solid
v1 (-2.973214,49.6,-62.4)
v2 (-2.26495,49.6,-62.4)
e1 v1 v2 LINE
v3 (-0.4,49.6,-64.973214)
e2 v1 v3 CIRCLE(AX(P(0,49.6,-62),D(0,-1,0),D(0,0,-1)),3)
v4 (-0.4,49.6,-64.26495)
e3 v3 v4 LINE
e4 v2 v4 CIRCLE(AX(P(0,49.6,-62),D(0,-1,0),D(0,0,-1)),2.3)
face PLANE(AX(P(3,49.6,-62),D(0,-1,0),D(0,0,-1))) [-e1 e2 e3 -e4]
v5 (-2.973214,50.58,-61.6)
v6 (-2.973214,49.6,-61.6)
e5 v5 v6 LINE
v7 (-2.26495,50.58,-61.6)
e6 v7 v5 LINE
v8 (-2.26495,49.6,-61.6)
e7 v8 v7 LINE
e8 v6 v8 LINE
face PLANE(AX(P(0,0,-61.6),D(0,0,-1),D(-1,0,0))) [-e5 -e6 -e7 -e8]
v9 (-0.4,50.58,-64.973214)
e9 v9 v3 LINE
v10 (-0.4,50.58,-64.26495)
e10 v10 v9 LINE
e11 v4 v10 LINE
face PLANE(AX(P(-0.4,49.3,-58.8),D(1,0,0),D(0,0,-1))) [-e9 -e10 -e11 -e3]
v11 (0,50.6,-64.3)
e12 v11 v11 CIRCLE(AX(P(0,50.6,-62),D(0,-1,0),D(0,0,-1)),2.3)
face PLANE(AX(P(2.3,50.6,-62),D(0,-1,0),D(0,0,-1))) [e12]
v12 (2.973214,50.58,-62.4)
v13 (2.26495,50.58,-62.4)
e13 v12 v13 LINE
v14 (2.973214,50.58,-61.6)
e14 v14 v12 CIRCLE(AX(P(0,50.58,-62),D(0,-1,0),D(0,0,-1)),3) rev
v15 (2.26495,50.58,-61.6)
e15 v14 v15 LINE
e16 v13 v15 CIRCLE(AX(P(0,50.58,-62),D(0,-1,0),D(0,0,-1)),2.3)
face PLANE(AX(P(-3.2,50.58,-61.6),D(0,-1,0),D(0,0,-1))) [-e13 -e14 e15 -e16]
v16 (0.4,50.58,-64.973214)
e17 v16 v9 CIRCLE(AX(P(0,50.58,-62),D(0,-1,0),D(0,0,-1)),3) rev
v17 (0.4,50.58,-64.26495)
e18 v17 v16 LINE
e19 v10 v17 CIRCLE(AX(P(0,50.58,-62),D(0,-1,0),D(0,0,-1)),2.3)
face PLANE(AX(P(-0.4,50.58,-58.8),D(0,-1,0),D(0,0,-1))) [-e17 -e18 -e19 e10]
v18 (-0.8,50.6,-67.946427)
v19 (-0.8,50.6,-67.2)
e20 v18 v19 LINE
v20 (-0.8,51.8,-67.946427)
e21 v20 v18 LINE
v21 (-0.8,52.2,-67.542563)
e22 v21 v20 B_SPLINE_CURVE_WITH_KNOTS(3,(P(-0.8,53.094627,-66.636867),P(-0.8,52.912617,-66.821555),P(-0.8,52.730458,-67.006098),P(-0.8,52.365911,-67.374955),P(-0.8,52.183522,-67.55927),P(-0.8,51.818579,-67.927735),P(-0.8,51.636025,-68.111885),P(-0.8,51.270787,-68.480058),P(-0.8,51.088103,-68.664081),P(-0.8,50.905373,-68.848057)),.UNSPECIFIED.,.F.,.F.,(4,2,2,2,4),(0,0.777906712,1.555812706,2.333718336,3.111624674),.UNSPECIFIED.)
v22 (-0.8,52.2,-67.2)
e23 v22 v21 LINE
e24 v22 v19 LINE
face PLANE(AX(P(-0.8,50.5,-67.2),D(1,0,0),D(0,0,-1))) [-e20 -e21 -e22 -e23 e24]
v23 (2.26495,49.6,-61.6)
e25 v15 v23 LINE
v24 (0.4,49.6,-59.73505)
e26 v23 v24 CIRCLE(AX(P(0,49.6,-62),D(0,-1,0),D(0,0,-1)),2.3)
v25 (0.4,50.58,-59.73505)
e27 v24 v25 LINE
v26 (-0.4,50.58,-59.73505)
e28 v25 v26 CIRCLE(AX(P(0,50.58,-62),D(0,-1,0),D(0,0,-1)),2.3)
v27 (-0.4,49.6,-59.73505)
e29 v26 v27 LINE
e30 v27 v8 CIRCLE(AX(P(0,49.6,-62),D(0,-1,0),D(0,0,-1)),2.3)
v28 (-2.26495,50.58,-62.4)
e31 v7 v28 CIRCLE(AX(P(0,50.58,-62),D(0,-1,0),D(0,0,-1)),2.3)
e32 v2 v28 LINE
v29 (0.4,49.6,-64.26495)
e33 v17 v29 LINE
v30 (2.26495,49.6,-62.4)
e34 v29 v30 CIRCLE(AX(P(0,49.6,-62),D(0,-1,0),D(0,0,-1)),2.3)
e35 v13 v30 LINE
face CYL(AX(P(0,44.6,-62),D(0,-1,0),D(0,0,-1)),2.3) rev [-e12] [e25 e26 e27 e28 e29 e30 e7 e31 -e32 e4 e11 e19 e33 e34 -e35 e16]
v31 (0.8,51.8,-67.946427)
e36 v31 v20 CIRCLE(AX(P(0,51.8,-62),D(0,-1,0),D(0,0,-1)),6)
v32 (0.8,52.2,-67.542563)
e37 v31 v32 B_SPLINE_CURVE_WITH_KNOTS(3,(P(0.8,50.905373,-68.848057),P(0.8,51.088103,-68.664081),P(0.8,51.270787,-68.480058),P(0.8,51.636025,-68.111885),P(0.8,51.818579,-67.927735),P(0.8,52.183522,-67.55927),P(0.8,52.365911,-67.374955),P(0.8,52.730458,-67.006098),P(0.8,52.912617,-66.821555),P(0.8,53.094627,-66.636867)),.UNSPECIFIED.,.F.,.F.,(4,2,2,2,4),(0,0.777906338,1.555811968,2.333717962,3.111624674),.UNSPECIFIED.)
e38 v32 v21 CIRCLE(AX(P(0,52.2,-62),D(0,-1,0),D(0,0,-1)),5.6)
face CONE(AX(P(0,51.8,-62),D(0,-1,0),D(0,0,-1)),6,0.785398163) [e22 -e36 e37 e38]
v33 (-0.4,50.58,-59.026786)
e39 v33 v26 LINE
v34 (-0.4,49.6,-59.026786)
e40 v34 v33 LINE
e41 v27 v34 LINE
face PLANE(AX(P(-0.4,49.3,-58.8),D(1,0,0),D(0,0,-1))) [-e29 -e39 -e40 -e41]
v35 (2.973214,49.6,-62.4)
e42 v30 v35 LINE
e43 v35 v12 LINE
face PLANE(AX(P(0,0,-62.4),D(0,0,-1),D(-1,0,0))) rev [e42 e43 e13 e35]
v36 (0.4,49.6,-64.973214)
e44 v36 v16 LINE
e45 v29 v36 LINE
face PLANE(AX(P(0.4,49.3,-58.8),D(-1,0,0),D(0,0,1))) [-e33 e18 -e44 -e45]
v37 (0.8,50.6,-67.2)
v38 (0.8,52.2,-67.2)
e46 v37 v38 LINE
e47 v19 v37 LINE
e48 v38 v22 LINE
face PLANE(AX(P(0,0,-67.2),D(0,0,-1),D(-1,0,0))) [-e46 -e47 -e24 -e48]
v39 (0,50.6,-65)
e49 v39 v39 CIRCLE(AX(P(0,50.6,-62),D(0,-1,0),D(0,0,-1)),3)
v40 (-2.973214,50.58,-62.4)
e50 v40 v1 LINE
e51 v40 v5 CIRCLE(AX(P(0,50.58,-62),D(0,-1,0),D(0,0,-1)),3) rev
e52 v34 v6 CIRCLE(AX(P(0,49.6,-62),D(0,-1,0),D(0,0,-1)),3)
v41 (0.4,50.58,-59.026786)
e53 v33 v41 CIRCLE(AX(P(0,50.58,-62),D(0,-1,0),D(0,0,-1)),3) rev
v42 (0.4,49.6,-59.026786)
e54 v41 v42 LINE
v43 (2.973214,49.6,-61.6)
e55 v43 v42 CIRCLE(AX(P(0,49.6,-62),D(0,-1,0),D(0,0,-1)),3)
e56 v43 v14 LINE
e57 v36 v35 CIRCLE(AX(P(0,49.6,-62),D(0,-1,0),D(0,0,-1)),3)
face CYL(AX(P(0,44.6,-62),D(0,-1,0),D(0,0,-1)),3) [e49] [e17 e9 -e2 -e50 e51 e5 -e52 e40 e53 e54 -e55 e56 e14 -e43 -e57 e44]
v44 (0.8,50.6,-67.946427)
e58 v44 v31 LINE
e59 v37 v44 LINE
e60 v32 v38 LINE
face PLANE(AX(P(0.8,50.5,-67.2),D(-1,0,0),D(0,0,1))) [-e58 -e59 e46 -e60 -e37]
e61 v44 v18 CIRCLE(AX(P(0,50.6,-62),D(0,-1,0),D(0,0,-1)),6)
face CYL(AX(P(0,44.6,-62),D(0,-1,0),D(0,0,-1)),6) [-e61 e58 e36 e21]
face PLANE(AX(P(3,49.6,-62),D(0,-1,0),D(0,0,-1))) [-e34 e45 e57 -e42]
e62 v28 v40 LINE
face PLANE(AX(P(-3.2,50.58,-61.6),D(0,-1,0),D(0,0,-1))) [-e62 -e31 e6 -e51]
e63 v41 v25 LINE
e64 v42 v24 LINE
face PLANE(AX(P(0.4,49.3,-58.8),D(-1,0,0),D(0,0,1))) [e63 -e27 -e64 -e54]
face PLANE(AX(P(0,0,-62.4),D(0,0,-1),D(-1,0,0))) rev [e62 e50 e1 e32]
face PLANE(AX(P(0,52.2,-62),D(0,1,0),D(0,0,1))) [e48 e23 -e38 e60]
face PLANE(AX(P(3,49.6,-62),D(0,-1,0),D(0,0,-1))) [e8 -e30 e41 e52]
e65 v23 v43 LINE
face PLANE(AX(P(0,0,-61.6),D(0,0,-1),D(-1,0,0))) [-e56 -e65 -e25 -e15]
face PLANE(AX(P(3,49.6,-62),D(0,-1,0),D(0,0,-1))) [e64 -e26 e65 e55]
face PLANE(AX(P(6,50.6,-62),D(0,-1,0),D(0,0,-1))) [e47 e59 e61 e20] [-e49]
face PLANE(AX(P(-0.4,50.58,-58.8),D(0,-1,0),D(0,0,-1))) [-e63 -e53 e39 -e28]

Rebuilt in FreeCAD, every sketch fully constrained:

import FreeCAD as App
import Part
import Sketcher
from FreeCAD import Vector
Q = App.Units.Quantity


def add_polygon(sketch, points):
    """Adds a closed chain of lines whose ends are joined by coincident constraints."""
    first, n = sketch.GeometryCount, len(points)
    for a, b in zip(points, points[1:] + points[:1]):
        sketch.addGeometry(Part.LineSegment(App.Vector(*a, 0), App.Vector(*b, 0)), False)
    for i in range(n):
        sketch.addConstraint(Sketcher.Constraint("Coincident", first + i, 2, first + (i + 1) % n, 1))

doc = App.newDocument("Part")
params = doc.addObject("Spreadsheet::Sheet", "Params")
for row, (alias, value) in enumerate([
    ("sketch1_width", "3 mm"),
    ("sketch1_height", "1 mm"),
    ("sketch1_width2", "0.7 mm"),
    ("sketch1_width3", "5.6 mm"),
    ("sketch1_width4", "2.3 mm"),
    ("revolution_angle", "360 deg"),
    ("sketch2_width", "0.8 mm"),
    ("sketch2_height", "1.28 mm"),
    ("pad1_length", "6.4 mm"),
    ("sketch3_width", "6.4 mm"),
    ("sketch3_height", "1.28 mm"),
    ("pad2_length", "0.8 mm"),
    ("sketch4_width", "1.6 mm"),
    ("sketch4_height", "1.8 mm"),
    ("pad3_length", "0.9 mm"),
], start=1):
    params.set(f"A{row}", alias)
    params.set(f"B{row}", "=" + value)
    params.setAlias(f"B{row}", alias)

body = doc.addObject("PartDesign::Body", "Body")

# Sketch on XY plane
sketch1 = doc.addObject("Sketcher::SketchObject", "Sketch")
body.addObject(sketch1)
sketch1.AttachmentSupport = (doc.XY_Plane, [""])
sketch1.MapMode = "FlatFace"
sketch1.AttachmentOffset = App.Placement(Vector(0, 0, -62), App.Rotation())
add_polygon(sketch1, [(2.3, 50.6), (2.3, 49.6), (3, 49.6), (3, 50.6), (6, 50.6), (6, 51.8), (5.6, 52.2), (0, 52.2), (0, 50.6)])  # lines 0-8
sketch1.addConstraint([
    Sketcher.Constraint("Vertical", 0),
    Sketcher.Constraint("Horizontal", 1),
    Sketcher.Constraint("Vertical", 2),
    Sketcher.Constraint("Horizontal", 3),
    Sketcher.Constraint("Vertical", 4),
    Sketcher.Constraint("Horizontal", 6),
    Sketcher.Constraint("Vertical", 7),
    Sketcher.Constraint("Horizontal", 8),
    Sketcher.Constraint("PointOnObject", 6, 2, -2),
    Sketcher.Constraint("Horizontal", 3, 2, 7, 2),
    Sketcher.Constraint("DistanceX", 3, 1, 3, 2, Q("3 mm")),
    Sketcher.Constraint("DistanceY", 0, 2, 0, 1, Q("1 mm")),
    Sketcher.Constraint("Angle", 5, Q("135 deg")),
    Sketcher.Constraint("DistanceX", 1, 1, 1, 2, Q("0.7 mm")),
    Sketcher.Constraint("DistanceX", 6, 2, 6, 1, Q("5.6 mm")),
    Sketcher.Constraint("DistanceX", 8, 1, 8, 2, Q("2.3 mm")),
    Sketcher.Constraint("DistanceY", 4, 1, 4, 2, Q("1.2 mm")),
    Sketcher.Constraint("DistanceY", -1, 1, 0, 2, Q("49.6 mm")),
])
sketch1.setExpression("Constraints[19]", "Params.sketch1_width")
sketch1.setExpression("Constraints[20]", "Params.sketch1_height")
sketch1.setExpression("Constraints[22]", "Params.sketch1_width2")
sketch1.setExpression("Constraints[23]", "Params.sketch1_width3")
sketch1.setExpression("Constraints[24]", "Params.sketch1_width4")
revolution = doc.addObject("PartDesign::Revolution", "Revolution")
body.addObject(revolution)
revolution.Profile = sketch1
revolution.ReferenceAxis = (sketch1, ["V_Axis"])
revolution.setExpression("Angle", "Params.revolution_angle")
body2 = doc.addObject("PartDesign::Body", "Body001")

# Sketch on XY plane
sketch2 = doc.addObject("Sketcher::SketchObject", "Sketch001")
body2.addObject(sketch2)
sketch2.AttachmentSupport = (doc.getObject("XY_Plane001"), [""])
sketch2.MapMode = "FlatFace"
sketch2.AttachmentOffset = App.Placement(Vector(0, 0, -65.2), App.Rotation())
add_polygon(sketch2, [(-0.4, 50.58), (-0.4, 49.3), (0.4, 49.3), (0.4, 50.58)])  # lines 0-3
sketch2.addConstraint([
    Sketcher.Constraint("Vertical", 0),
    Sketcher.Constraint("Horizontal", 1),
    Sketcher.Constraint("Vertical", 2),
    Sketcher.Constraint("Horizontal", 3),
    Sketcher.Constraint("DistanceX", 1, 1, 1, 2, Q("0.8 mm")),
    Sketcher.Constraint("DistanceY", 0, 2, 0, 1, Q("1.28 mm")),
    Sketcher.Constraint("DistanceX", 0, 2, -1, 1, Q("0.4 mm")),
    Sketcher.Constraint("DistanceY", -1, 1, 0, 2, Q("49.3 mm")),
])
sketch2.setExpression("Constraints[8]", "Params.sketch2_width")
sketch2.setExpression("Constraints[9]", "Params.sketch2_height")
pad1 = doc.addObject("PartDesign::Pad", "Pad")
body2.addObject(pad1)
pad1.Profile = sketch2
pad1.setExpression("Length", "Params.pad1_length")
doc.recompute()

boolean = doc.addObject("PartDesign::Boolean", "Boolean")
body.addObject(boolean)
boolean.Type = "Cut"
boolean.addObjects([body2])
body3 = doc.addObject("PartDesign::Body", "Body002")

# Sketch on XY plane
sketch3 = doc.addObject("Sketcher::SketchObject", "Sketch002")
body3.addObject(sketch3)
sketch3.AttachmentSupport = (doc.getObject("XY_Plane002"), [""])
sketch3.MapMode = "FlatFace"
sketch3.AttachmentOffset = App.Placement(Vector(0, 0, -62.4), App.Rotation())
add_polygon(sketch3, [(-3.2, 50.58), (-3.2, 49.3), (3.2, 49.3), (3.2, 50.58)])  # lines 0-3
sketch3.addConstraint([
    Sketcher.Constraint("Vertical", 0),
    Sketcher.Constraint("Horizontal", 1),
    Sketcher.Constraint("Vertical", 2),
    Sketcher.Constraint("Horizontal", 3),
    Sketcher.Constraint("DistanceX", 1, 1, 1, 2, Q("6.4 mm")),
    Sketcher.Constraint("DistanceY", 0, 2, 0, 1, Q("1.28 mm")),
    Sketcher.Constraint("DistanceX", 0, 2, -1, 1, Q("3.2 mm")),
    Sketcher.Constraint("DistanceY", -1, 1, 0, 2, Q("49.3 mm")),
])
sketch3.setExpression("Constraints[8]", "Params.sketch3_width")
sketch3.setExpression("Constraints[9]", "Params.sketch3_height")
pad2 = doc.addObject("PartDesign::Pad", "Pad001")
body3.addObject(pad2)
pad2.Profile = sketch3
pad2.setExpression("Length", "Params.pad2_length")
doc.recompute()

boolean2 = doc.addObject("PartDesign::Boolean", "Boolean001")
body.addObject(boolean2)
boolean2.Type = "Cut"
boolean2.addObjects([body3])
body4 = doc.addObject("PartDesign::Body", "Body003")

# Sketch on XY plane
sketch4 = doc.addObject("Sketcher::SketchObject", "Sketch003")
body4.addObject(sketch4)
sketch4.AttachmentSupport = (doc.getObject("XY_Plane003"), [""])
sketch4.MapMode = "FlatFace"
sketch4.AttachmentOffset = App.Placement(Vector(0, 0, -68.1), App.Rotation())
add_polygon(sketch4, [(-0.8, 52.3), (-0.8, 50.5), (0.8, 50.5), (0.8, 52.3)])  # lines 0-3
sketch4.addConstraint([
    Sketcher.Constraint("Vertical", 0),
    Sketcher.Constraint("Horizontal", 1),
    Sketcher.Constraint("Vertical", 2),
    Sketcher.Constraint("Horizontal", 3),
    Sketcher.Constraint("DistanceX", 1, 1, 1, 2, Q("1.6 mm")),
    Sketcher.Constraint("DistanceY", 0, 2, 0, 1, Q("1.8 mm")),
    Sketcher.Constraint("DistanceX", 0, 2, -1, 1, Q("0.8 mm")),
    Sketcher.Constraint("DistanceY", -1, 1, 0, 2, Q("50.5 mm")),
])
sketch4.setExpression("Constraints[8]", "Params.sketch4_width")
sketch4.setExpression("Constraints[9]", "Params.sketch4_height")
pad3 = doc.addObject("PartDesign::Pad", "Pad002")
body4.addObject(pad3)
pad3.Profile = sketch4
pad3.setExpression("Length", "Params.pad3_length")
doc.recompute()

boolean3 = doc.addObject("PartDesign::Boolean", "Boolean002")
body.addObject(boolean3)
boolean3.Type = "Cut"
boolean3.addObjects([body4])

doc.recompute()
